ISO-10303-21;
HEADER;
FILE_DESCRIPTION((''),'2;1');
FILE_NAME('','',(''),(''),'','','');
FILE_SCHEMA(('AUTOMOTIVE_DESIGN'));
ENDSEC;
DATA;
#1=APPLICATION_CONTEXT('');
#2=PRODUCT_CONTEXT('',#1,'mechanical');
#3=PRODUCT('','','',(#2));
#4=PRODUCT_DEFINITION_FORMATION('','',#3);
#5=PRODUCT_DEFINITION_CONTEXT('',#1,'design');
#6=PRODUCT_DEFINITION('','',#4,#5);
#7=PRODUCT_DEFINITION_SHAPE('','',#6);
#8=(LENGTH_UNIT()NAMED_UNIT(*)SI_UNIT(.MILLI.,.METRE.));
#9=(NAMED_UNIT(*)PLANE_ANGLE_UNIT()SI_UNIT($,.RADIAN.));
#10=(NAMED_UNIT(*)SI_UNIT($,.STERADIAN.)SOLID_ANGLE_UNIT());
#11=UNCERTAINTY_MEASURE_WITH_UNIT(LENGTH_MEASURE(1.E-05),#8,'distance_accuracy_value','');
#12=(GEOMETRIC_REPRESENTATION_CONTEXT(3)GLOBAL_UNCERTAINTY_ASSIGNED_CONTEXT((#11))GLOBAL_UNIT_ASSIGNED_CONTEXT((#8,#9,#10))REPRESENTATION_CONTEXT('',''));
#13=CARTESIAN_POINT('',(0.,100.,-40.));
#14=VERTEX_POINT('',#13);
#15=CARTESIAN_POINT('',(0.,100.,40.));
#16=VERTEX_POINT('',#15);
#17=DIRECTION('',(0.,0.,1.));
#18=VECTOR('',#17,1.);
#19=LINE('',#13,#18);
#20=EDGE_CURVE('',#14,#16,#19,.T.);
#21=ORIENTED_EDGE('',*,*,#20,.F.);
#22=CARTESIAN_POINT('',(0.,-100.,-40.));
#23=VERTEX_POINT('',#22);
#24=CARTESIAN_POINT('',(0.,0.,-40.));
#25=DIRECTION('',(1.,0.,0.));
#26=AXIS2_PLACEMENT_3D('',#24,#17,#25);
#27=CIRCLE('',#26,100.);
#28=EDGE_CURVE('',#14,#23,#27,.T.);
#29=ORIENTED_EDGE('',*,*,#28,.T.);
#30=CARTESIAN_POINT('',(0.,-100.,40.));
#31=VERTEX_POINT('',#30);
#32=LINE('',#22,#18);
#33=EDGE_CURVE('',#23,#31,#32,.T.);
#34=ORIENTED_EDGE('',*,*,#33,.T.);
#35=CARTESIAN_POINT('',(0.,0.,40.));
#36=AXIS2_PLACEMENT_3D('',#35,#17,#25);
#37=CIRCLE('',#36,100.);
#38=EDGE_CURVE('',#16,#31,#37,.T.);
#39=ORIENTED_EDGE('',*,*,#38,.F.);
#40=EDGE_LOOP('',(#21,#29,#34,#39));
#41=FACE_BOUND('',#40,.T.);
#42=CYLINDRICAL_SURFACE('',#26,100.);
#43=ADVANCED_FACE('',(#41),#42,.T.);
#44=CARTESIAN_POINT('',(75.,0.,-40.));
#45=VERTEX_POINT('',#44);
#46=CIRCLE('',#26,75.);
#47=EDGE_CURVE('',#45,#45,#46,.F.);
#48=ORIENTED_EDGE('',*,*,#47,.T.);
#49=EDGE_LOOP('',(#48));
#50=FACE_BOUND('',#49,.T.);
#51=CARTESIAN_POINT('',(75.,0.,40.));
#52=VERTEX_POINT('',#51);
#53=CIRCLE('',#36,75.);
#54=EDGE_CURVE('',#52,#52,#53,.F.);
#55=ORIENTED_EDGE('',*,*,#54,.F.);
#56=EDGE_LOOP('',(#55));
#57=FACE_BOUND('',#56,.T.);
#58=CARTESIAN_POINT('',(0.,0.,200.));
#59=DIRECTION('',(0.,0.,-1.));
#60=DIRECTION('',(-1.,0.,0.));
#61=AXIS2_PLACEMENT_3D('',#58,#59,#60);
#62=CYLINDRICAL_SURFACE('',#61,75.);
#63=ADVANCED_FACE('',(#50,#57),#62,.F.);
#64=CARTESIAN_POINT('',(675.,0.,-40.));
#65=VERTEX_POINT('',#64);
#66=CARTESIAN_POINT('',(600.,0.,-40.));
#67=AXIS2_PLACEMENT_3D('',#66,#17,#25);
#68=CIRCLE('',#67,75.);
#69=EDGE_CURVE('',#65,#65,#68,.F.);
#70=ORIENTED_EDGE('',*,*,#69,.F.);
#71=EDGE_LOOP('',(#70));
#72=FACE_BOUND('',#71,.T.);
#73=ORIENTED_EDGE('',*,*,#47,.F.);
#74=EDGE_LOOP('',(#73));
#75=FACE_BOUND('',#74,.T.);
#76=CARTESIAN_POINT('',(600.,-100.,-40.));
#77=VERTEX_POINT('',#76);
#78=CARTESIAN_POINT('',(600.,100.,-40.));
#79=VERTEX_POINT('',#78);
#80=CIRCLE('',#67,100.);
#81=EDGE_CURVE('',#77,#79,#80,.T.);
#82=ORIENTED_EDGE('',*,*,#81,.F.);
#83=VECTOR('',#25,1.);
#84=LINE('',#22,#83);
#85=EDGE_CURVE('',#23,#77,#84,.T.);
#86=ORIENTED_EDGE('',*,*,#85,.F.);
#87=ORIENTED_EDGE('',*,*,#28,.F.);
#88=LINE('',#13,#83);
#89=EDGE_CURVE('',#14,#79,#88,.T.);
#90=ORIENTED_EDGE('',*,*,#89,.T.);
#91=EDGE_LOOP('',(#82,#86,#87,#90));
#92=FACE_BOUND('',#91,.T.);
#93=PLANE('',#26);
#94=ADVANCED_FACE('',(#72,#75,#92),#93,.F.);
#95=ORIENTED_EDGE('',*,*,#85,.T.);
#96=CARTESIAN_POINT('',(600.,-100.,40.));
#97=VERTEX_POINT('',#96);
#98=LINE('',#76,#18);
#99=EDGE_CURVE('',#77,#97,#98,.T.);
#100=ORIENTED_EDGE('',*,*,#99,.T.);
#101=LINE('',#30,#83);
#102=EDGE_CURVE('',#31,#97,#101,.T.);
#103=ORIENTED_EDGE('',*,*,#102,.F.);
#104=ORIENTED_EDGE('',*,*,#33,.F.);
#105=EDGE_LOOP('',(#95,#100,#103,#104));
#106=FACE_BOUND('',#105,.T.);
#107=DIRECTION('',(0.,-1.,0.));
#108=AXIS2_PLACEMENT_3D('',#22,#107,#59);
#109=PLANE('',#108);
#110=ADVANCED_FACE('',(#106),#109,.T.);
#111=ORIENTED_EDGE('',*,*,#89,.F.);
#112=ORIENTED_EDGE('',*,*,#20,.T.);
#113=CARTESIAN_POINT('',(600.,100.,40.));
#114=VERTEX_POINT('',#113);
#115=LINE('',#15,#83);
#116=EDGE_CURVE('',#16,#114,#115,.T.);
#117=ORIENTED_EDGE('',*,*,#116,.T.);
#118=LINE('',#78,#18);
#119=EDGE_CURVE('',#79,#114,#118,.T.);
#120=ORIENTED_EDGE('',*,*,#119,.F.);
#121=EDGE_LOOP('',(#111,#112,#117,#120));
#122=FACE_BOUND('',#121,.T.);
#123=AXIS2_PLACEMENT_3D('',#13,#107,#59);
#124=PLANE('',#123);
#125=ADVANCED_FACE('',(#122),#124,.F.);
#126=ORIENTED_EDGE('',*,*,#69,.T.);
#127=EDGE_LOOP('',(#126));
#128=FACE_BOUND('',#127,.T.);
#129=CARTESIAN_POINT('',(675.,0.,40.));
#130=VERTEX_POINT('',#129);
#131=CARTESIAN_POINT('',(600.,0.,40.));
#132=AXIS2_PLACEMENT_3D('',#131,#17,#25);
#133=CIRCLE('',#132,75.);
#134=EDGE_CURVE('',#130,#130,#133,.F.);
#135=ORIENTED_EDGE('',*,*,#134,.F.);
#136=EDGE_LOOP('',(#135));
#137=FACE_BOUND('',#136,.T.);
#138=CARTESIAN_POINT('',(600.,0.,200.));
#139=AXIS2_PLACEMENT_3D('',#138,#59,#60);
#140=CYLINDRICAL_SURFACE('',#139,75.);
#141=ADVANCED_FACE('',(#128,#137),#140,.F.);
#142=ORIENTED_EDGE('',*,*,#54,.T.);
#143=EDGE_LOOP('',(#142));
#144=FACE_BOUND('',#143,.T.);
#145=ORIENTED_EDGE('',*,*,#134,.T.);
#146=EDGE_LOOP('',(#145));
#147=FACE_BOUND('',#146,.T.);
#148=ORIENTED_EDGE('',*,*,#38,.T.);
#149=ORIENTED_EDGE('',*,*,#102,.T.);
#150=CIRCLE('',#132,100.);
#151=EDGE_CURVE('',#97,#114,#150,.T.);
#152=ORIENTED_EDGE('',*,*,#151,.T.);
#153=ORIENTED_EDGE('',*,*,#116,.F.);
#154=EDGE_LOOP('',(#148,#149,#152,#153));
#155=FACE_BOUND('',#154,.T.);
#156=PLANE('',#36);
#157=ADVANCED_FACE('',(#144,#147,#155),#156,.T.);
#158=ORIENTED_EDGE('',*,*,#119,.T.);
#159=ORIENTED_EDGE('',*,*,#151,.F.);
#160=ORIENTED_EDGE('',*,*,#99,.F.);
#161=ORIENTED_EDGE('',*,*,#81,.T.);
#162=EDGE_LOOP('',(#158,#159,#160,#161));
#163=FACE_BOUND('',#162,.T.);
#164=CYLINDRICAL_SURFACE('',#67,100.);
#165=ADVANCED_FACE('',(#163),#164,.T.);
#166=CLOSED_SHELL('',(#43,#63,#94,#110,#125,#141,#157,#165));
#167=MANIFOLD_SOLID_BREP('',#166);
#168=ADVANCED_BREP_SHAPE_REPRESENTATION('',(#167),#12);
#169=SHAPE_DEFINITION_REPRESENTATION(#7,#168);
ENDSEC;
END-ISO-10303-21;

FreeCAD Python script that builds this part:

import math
import FreeCAD as App
import Part
import Sketcher

doc = App.newDocument("Part")
body = doc.addObject("PartDesign::Body", "Body")

# Sketch on XY plane
sketch1 = body.newObject("Sketcher::SketchObject", "Sketch")
sketch1.AttachmentSupport = (doc.getObject("XY_Plane"), [""])
sketch1.MapMode = "FlatFace"
sketch1.addGeometry([
    Part.LineSegment(App.Vector(600, 100, 0), App.Vector(0, 100, 0)),
    Part.ArcOfCircle(Part.Circle(App.Vector(0, 0, 0), App.Vector(0, 0, 1), 100), math.radians(90), math.radians(270)),
    Part.LineSegment(App.Vector(0, -100, 0), App.Vector(600, -100, 0)),
    Part.ArcOfCircle(Part.Circle(App.Vector(600, 0, 0), App.Vector(0, 0, 1), 100), math.radians(-90), math.radians(90)),
], False)
sketch1.addConstraint([
    Sketcher.Constraint("Tangent", 0, 2, 1, 1),
    Sketcher.Constraint("Tangent", 1, 2, 2, 1),
    Sketcher.Constraint("Tangent", 2, 2, 3, 1),
    Sketcher.Constraint("Tangent", 3, 2, 0, 1),
    Sketcher.Constraint("Horizontal", 0),
    Sketcher.Constraint("Horizontal", 2),
    Sketcher.Constraint("Coincident", 1, 3, -1, 1),
    Sketcher.Constraint("Radius", 1, 100.0),
    Sketcher.Constraint("DistanceX", 0, 2, 0, 1, 600.0),
])
pad1 = body.newObject("PartDesign::Pad", "Pad")
pad1.Profile = sketch1
pad1.Type = "TwoLengths"
pad1.Length = 40
pad1.Length2 = 40

# Sketch on XY plane
sketch2 = body.newObject("Sketcher::SketchObject", "Sketch001")
sketch2.AttachmentSupport = (doc.getObject("XY_Plane"), [""])
sketch2.MapMode = "FlatFace"
sketch2.addGeometry(Part.Circle(App.Vector(0, 0, 0), App.Vector(0, 0, 1), 75), False)
sketch2.addConstraint([
    Sketcher.Constraint("Coincident", 0, 3, -1, 1),
    Sketcher.Constraint("Diameter", 0, 150.0),
])
pocket1 = body.newObject("PartDesign::Pocket", "Pocket")
pocket1.Profile = sketch2
pocket1.Type = "ThroughAll"
pocket1.Midplane = True

# Sketch on XY plane
sketch3 = body.newObject("Sketcher::SketchObject", "Sketch002")
sketch3.AttachmentSupport = (doc.getObject("XY_Plane"), [""])
sketch3.MapMode = "FlatFace"
sketch3.addGeometry(Part.Circle(App.Vector(600, 0, 0), App.Vector(0, 0, 1), 75), False)
sketch3.addConstraint([
    Sketcher.Constraint("PointOnObject", 0, 3, -1),
    Sketcher.Constraint("Diameter", 0, 150.0),
    Sketcher.Constraint("DistanceX", -1, 1, 0, 3, 600.0),
])
pocket2 = body.newObject("PartDesign::Pocket", "Pocket001")
pocket2.Profile = sketch3
pocket2.Type = "ThroughAll"
pocket2.Midplane = True

doc.recompute()
